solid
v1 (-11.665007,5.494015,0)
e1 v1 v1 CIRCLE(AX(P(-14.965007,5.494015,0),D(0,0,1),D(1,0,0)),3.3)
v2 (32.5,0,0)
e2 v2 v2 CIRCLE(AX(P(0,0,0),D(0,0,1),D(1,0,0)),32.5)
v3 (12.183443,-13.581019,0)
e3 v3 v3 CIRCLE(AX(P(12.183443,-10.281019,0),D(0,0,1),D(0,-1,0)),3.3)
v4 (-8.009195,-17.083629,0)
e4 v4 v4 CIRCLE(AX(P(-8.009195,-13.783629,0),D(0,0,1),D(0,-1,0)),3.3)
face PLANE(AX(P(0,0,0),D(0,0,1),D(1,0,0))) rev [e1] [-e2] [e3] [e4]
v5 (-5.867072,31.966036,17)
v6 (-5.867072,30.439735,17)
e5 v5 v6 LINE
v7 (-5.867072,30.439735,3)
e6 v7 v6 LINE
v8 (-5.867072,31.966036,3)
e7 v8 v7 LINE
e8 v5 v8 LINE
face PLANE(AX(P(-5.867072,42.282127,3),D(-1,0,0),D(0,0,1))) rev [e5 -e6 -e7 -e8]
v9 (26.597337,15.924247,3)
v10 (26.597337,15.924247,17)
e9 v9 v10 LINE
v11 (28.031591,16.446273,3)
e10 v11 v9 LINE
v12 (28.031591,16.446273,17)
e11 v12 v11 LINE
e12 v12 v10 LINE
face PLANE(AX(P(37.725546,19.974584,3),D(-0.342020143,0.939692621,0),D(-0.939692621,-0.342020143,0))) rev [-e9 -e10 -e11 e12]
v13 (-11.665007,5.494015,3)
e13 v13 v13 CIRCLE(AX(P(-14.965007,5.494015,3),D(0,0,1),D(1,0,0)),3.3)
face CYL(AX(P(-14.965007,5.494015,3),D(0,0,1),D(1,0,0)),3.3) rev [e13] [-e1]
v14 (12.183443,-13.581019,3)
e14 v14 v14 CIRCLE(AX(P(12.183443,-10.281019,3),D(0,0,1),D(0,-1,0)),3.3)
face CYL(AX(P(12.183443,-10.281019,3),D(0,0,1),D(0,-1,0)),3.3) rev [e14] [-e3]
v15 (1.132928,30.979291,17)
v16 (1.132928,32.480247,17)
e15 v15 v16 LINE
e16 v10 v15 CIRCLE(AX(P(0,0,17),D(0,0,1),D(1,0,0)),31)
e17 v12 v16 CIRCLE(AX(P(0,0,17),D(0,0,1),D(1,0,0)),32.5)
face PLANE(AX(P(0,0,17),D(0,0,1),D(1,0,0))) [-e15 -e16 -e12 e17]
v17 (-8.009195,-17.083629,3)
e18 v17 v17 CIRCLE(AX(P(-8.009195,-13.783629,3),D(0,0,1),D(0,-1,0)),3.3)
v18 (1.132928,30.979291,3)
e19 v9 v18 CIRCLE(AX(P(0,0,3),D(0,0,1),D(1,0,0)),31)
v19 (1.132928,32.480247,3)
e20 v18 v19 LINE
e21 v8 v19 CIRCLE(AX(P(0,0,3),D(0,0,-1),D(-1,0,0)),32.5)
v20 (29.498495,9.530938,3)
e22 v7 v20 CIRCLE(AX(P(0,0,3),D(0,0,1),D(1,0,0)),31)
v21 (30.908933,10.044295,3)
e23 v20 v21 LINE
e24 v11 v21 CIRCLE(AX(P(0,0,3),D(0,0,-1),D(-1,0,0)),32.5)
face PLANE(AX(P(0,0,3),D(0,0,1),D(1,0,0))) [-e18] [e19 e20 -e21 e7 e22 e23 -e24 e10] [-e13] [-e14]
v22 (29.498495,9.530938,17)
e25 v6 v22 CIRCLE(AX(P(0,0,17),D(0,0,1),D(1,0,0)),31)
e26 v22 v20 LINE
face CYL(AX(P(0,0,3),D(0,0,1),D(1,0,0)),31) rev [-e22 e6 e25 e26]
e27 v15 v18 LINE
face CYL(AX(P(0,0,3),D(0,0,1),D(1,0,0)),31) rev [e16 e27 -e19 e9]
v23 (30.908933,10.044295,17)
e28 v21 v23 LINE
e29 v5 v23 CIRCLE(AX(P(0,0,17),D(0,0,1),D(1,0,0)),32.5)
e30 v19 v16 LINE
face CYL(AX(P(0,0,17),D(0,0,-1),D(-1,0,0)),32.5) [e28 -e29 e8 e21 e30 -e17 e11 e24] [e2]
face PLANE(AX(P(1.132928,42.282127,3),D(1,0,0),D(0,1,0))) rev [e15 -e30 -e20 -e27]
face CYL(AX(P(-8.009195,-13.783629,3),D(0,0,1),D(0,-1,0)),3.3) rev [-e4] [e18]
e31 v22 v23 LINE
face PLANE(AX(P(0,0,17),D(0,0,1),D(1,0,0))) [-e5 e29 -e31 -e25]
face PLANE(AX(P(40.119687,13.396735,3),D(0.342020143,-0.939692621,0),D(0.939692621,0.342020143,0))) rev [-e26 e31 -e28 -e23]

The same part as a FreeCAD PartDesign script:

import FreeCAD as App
import Part
import Sketcher

V = App.Vector
Q = App.Units.Quantity

doc = App.newDocument("Part")
body = doc.addObject("PartDesign::Body", "Body")

# Sketch on XY plane
sketch1 = body.newObject("Sketcher::SketchObject", "Sketch")
sketch1.AttachmentSupport = (doc.getObject("XY_Plane"), [""])
sketch1.MapMode = "FlatFace"
sketch1.addGeometry(Part.Circle(V(0, 0, 0), V(0, 0, 1), 32), False)
sketch1.addConstraint(Sketcher.Constraint("Coincident", 0, 3, -1, 1))
sketch1.addConstraint(Sketcher.Constraint("Diameter", 0, Q("65 mm")))
pad1 = body.newObject("PartDesign::Pad", "Pad")
pad1.Profile = sketch1
pad1.Length = 17

# Sketch on XY plane
sketch2 = body.newObject("Sketcher::SketchObject", "Sketch001")
sketch2.AttachmentSupport = (doc.getObject("XY_Plane"), [""])
sketch2.MapMode = "FlatFace"
sketch2.AttachmentOffset = App.Placement(V(0, 0, 17), App.Rotation())
sketch2.addGeometry(Part.Circle(V(0, 0, 0), V(0, 0, 1), 31), False)
sketch2.addConstraint(Sketcher.Constraint("Coincident", 0, 3, -1, 1))
sketch2.addConstraint(Sketcher.Constraint("Diameter", 0, Q("62 mm")))
pocket1 = body.newObject("PartDesign::Pocket", "Pocket")
pocket1.Profile = sketch2
pocket1.Length = 14

# Sketch on XY plane
sketch3 = body.newObject("Sketcher::SketchObject", "Sketch002")
sketch3.AttachmentSupport = (doc.getObject("XY_Plane"), [""])
sketch3.MapMode = "FlatFace"
sketch3.AttachmentOffset = App.Placement(V(0, 0, 17), App.Rotation())
sketch3.addGeometry(Part.LineSegment(V(-6, 42, 0), V(-6, 21, 0)), False)
sketch3.addGeometry(Part.LineSegment(V(-6, 21, 0), V(1, 21, 0)), False)
sketch3.addGeometry(Part.LineSegment(V(1, 21, 0), V(1, 42, 0)), False)
sketch3.addGeometry(Part.LineSegment(V(1, 42, 0), V(-6, 42, 0)), False)
sketch3.addConstraint(Sketcher.Constraint("Coincident", 0, 2, 1, 1))
sketch3.addConstraint(Sketcher.Constraint("Coincident", 1, 2, 2, 1))
sketch3.addConstraint(Sketcher.Constraint("Coincident", 2, 2, 3, 1))
sketch3.addConstraint(Sketcher.Constraint("Coincident", 3, 2, 0, 1))
sketch3.addConstraint(Sketcher.Constraint("Vertical", 0))
sketch3.addConstraint(Sketcher.Constraint("Horizontal", 1))
sketch3.addConstraint(Sketcher.Constraint("Vertical", 2))
sketch3.addConstraint(Sketcher.Constraint("Horizontal", 3))
sketch3.addConstraint(Sketcher.Constraint("DistanceX", 1, 1, 1, 2, Q("7 mm")))
sketch3.addConstraint(Sketcher.Constraint("DistanceY", 0, 2, 0, 1, Q("21.006685 mm")))
sketch3.addConstraint(Sketcher.Constraint("DistanceX", 0, 2, -1, 1, Q("5.867072 mm")))
sketch3.addConstraint(Sketcher.Constraint("DistanceY", -1, 1, 0, 2, Q("21.275443 mm")))
pocket2 = body.newObject("PartDesign::Pocket", "Pocket001")
pocket2.Profile = sketch3
pocket2.Length = 14
doc.recompute()

polarpattern = body.newObject("PartDesign::PolarPattern", "PolarPattern")
polarpattern.Originals = [pocket2]
polarpattern.Axis = (doc.getObject("Z_Axis"), [""])
polarpattern.Angle = 70
polarpattern.Occurrences = 2
polarpattern.Reversed = True
body.Tip = polarpattern

# Sketch on XY plane
sketch4 = body.newObject("Sketcher::SketchObject", "Sketch003")
sketch4.AttachmentSupport = (doc.getObject("XY_Plane"), [""])
sketch4.MapMode = "FlatFace"
sketch4.AttachmentOffset = App.Placement(V(0, 0, 3), App.Rotation())
sketch4.addGeometry(Part.Circle(V(-15, 5.5, 0), V(0, 0, 1), 3.3), False)
sketch4.addConstraint(Sketcher.Constraint("Diameter", 0, Q("6.6 mm")))
sketch4.addConstraint(Sketcher.Constraint("DistanceX", 0, 3, -1, 1, Q("14.965007 mm")))
sketch4.addConstraint(Sketcher.Constraint("DistanceY", -1, 1, 0, 3, Q("5.494015 mm")))
doc.recompute()
hole = body.newObject("PartDesign::Hole", "Hole")
hole.Profile = sketch4
hole.ThreadType = "None"
hole.Diameter = 6.6
hole.DepthType = "ThroughAll"
doc.recompute()

polarpattern2 = body.newObject("PartDesign::PolarPattern", "PolarPattern001")
polarpattern2.Originals = [hole]
polarpattern2.Axis = (doc.getObject("Z_Axis"), [""])
polarpattern2.Angle = 160
polarpattern2.Occurrences = 3
body.Tip = polarpattern2

doc.recompute()
